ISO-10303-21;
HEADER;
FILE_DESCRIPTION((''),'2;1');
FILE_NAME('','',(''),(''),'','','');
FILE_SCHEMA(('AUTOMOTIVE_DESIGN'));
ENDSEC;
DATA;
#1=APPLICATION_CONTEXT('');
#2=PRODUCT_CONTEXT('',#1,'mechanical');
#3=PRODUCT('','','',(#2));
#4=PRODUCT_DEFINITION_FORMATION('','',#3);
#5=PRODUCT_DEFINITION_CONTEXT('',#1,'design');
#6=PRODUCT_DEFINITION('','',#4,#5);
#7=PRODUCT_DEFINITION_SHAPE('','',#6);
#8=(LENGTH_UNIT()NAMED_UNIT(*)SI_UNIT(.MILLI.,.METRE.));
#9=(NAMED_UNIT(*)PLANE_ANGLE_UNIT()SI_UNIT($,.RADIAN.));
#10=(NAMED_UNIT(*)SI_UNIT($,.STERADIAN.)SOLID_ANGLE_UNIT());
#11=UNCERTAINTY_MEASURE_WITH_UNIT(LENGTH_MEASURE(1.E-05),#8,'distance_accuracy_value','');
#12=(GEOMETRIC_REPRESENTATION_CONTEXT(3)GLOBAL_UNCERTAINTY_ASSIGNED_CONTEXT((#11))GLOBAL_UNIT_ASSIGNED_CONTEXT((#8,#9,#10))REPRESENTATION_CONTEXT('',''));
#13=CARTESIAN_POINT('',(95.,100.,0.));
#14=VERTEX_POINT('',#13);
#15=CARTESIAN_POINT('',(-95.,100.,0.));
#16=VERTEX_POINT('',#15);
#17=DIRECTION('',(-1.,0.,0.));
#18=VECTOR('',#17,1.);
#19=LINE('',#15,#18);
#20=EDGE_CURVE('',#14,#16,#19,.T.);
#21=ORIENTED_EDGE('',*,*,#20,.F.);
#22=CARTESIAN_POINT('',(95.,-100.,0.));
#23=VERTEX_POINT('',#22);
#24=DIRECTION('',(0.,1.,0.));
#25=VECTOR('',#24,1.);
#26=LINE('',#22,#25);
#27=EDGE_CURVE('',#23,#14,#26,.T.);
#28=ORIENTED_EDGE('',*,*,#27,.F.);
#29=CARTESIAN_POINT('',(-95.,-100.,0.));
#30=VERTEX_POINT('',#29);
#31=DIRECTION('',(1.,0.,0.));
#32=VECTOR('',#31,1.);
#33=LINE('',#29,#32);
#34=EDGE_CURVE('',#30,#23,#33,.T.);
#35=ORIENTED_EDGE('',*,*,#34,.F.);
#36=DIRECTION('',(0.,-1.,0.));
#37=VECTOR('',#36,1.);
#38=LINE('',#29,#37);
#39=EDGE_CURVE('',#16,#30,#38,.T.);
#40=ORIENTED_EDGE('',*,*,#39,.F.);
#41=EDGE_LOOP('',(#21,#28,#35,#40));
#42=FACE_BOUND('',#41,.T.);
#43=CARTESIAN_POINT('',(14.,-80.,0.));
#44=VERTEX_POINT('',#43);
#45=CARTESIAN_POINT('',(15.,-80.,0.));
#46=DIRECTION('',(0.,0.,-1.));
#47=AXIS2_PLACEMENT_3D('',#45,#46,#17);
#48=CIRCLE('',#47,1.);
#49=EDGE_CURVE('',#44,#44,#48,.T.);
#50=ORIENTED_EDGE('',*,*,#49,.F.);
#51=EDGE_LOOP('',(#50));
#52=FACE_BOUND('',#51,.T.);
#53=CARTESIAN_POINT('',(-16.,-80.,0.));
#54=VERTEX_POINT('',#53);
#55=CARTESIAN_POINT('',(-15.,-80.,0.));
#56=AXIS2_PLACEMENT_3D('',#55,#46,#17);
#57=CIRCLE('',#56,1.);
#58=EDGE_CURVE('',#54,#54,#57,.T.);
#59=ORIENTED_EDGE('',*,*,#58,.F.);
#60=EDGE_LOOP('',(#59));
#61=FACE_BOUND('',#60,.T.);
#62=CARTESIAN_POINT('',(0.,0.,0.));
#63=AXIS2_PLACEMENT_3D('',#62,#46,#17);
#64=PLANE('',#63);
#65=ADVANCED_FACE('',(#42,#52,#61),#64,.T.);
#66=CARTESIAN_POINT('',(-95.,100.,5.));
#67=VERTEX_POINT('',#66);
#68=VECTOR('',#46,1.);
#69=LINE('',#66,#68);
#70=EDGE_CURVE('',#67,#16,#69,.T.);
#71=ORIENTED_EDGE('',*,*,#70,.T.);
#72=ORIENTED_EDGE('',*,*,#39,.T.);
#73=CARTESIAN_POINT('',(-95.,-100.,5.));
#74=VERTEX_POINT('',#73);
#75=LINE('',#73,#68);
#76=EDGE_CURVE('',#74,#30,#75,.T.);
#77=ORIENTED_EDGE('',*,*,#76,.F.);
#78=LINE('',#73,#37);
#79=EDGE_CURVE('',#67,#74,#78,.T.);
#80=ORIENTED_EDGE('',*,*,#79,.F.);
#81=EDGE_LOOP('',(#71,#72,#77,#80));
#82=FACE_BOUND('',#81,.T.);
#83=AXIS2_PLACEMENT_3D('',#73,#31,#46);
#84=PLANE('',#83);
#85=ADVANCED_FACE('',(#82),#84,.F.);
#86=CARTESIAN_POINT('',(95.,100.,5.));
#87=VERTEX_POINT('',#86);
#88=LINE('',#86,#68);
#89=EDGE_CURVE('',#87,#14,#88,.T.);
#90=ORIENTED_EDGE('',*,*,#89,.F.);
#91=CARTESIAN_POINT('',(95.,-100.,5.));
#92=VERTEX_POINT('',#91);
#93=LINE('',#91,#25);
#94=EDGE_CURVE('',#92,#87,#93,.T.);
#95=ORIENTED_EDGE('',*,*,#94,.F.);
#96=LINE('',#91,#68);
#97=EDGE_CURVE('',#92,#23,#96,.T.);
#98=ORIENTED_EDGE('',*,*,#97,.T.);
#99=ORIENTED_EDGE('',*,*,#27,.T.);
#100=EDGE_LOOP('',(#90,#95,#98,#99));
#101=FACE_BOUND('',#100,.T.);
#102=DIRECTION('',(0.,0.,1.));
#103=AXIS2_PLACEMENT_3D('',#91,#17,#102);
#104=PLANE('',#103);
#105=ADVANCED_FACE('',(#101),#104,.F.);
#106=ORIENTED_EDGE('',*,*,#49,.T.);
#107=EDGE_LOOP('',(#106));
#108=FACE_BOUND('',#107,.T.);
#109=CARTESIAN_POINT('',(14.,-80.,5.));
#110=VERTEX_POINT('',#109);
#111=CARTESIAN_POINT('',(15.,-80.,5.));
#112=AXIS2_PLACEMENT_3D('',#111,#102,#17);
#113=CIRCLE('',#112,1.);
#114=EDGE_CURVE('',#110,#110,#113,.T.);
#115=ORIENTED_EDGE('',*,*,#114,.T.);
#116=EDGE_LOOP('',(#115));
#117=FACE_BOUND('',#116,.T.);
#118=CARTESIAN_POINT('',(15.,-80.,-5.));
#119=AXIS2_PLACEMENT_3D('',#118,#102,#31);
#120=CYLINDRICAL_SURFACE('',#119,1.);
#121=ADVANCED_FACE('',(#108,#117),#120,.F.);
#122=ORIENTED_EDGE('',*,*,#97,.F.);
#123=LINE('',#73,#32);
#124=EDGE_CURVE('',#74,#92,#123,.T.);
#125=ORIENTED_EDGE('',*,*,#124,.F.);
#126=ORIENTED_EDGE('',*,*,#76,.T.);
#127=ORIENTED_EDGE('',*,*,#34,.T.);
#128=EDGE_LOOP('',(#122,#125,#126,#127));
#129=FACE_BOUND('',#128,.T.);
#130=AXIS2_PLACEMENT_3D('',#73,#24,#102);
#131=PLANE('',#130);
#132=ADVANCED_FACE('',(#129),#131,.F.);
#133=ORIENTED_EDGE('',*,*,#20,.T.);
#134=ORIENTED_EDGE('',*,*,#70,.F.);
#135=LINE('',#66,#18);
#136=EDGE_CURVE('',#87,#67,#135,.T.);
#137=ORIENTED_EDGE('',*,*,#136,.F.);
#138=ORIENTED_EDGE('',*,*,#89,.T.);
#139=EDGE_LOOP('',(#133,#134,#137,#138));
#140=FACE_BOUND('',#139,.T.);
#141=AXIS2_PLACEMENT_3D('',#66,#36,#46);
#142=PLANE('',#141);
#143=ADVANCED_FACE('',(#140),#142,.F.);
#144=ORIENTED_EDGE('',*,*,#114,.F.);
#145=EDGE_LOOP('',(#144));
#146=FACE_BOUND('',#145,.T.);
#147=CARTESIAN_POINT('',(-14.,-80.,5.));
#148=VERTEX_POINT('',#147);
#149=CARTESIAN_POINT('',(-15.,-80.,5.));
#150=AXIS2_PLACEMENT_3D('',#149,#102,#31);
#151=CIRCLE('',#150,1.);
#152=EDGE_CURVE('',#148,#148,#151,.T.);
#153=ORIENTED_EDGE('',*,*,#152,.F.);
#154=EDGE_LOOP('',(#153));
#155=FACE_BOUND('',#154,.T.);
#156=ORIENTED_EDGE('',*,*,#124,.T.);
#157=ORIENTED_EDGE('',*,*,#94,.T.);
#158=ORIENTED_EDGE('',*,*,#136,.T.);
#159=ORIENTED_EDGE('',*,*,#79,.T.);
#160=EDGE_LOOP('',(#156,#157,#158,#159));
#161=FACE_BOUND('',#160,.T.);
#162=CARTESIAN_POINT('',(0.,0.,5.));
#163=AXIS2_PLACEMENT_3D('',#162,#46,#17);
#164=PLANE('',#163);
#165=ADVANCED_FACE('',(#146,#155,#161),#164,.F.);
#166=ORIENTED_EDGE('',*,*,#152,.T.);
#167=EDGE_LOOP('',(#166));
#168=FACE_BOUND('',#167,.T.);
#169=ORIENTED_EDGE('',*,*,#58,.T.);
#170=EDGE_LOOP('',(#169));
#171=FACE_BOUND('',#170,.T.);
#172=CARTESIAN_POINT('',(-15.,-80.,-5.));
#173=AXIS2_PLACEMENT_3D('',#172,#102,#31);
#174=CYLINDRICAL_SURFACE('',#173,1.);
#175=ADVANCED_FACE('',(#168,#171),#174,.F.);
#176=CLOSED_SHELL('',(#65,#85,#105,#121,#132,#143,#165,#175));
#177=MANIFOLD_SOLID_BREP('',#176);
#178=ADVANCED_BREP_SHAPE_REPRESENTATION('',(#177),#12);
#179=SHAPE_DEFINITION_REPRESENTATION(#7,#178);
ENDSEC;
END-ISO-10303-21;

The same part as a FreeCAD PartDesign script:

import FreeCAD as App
import Part
import Sketcher

V = App.Vector
Q = App.Units.Quantity


def add_polygon(sketch, points):
    """Adds a closed chain of lines whose ends are joined by coincident constraints."""
    first, n = sketch.GeometryCount, len(points)
    for a, b in zip(points, points[1:] + points[:1]):
        sketch.addGeometry(Part.LineSegment(App.Vector(*a, 0), App.Vector(*b, 0)), False)
    for i in range(n):
        sketch.addConstraint(Sketcher.Constraint("Coincident", first + i, 2, first + (i + 1) % n, 1))

doc = App.newDocument("Part")
body = doc.addObject("PartDesign::Body", "Body")

# Sketch on XY plane
sketch1 = body.newObject("Sketcher::SketchObject", "Sketch")
sketch1.AttachmentSupport = (doc.getObject("XY_Plane"), [""])
sketch1.MapMode = "FlatFace"
add_polygon(sketch1, [(-95, 100), (-95, -100), (95, -100), (95, 100)])  # lines 0-3
sketch1.addConstraint([
    Sketcher.Constraint("Vertical", 0),
    Sketcher.Constraint("Horizontal", 1),
    Sketcher.Constraint("Vertical", 2),
    Sketcher.Constraint("Horizontal", 3),
    Sketcher.Constraint("Symmetric", 0, 2, 2, 2, -1, 1),
    Sketcher.Constraint("DistanceX", 1, 1, 1, 2, Q("190 mm")),
    Sketcher.Constraint("DistanceY", 0, 2, 0, 1, Q("200 mm")),
])
pad1 = body.newObject("PartDesign::Pad", "Pad")
pad1.Profile = sketch1
pad1.Length = 5

# Sketch on XY plane
sketch2 = body.newObject("Sketcher::SketchObject", "Sketch001")
sketch2.AttachmentSupport = (doc.getObject("XY_Plane"), [""])
sketch2.MapMode = "FlatFace"
sketch2.AttachmentOffset = App.Placement(V(0, 0, 5), App.Rotation())
sketch2.addGeometry([
    Part.Circle(V(-15, -80, 0), V(0, 0, 1), 1),
    Part.Circle(V(15, -80, 0), V(0, 0, 1), 1),
], False)
sketch2.addConstraint([
    Sketcher.Constraint("Equal", 0, 1),
    Sketcher.Constraint("Symmetric", 0, 3, 1, 3, -2),
    Sketcher.Constraint("Diameter", 0, Q("2 mm")),
    Sketcher.Constraint("DistanceX", 0, 3, -1, 1, Q("15 mm")),
    Sketcher.Constraint("DistanceY", 0, 3, -1, 1, Q("80 mm")),
])
pocket1 = body.newObject("PartDesign::Pocket", "Pocket")
pocket1.Profile = sketch2
pocket1.Length = 10

doc.recompute()
